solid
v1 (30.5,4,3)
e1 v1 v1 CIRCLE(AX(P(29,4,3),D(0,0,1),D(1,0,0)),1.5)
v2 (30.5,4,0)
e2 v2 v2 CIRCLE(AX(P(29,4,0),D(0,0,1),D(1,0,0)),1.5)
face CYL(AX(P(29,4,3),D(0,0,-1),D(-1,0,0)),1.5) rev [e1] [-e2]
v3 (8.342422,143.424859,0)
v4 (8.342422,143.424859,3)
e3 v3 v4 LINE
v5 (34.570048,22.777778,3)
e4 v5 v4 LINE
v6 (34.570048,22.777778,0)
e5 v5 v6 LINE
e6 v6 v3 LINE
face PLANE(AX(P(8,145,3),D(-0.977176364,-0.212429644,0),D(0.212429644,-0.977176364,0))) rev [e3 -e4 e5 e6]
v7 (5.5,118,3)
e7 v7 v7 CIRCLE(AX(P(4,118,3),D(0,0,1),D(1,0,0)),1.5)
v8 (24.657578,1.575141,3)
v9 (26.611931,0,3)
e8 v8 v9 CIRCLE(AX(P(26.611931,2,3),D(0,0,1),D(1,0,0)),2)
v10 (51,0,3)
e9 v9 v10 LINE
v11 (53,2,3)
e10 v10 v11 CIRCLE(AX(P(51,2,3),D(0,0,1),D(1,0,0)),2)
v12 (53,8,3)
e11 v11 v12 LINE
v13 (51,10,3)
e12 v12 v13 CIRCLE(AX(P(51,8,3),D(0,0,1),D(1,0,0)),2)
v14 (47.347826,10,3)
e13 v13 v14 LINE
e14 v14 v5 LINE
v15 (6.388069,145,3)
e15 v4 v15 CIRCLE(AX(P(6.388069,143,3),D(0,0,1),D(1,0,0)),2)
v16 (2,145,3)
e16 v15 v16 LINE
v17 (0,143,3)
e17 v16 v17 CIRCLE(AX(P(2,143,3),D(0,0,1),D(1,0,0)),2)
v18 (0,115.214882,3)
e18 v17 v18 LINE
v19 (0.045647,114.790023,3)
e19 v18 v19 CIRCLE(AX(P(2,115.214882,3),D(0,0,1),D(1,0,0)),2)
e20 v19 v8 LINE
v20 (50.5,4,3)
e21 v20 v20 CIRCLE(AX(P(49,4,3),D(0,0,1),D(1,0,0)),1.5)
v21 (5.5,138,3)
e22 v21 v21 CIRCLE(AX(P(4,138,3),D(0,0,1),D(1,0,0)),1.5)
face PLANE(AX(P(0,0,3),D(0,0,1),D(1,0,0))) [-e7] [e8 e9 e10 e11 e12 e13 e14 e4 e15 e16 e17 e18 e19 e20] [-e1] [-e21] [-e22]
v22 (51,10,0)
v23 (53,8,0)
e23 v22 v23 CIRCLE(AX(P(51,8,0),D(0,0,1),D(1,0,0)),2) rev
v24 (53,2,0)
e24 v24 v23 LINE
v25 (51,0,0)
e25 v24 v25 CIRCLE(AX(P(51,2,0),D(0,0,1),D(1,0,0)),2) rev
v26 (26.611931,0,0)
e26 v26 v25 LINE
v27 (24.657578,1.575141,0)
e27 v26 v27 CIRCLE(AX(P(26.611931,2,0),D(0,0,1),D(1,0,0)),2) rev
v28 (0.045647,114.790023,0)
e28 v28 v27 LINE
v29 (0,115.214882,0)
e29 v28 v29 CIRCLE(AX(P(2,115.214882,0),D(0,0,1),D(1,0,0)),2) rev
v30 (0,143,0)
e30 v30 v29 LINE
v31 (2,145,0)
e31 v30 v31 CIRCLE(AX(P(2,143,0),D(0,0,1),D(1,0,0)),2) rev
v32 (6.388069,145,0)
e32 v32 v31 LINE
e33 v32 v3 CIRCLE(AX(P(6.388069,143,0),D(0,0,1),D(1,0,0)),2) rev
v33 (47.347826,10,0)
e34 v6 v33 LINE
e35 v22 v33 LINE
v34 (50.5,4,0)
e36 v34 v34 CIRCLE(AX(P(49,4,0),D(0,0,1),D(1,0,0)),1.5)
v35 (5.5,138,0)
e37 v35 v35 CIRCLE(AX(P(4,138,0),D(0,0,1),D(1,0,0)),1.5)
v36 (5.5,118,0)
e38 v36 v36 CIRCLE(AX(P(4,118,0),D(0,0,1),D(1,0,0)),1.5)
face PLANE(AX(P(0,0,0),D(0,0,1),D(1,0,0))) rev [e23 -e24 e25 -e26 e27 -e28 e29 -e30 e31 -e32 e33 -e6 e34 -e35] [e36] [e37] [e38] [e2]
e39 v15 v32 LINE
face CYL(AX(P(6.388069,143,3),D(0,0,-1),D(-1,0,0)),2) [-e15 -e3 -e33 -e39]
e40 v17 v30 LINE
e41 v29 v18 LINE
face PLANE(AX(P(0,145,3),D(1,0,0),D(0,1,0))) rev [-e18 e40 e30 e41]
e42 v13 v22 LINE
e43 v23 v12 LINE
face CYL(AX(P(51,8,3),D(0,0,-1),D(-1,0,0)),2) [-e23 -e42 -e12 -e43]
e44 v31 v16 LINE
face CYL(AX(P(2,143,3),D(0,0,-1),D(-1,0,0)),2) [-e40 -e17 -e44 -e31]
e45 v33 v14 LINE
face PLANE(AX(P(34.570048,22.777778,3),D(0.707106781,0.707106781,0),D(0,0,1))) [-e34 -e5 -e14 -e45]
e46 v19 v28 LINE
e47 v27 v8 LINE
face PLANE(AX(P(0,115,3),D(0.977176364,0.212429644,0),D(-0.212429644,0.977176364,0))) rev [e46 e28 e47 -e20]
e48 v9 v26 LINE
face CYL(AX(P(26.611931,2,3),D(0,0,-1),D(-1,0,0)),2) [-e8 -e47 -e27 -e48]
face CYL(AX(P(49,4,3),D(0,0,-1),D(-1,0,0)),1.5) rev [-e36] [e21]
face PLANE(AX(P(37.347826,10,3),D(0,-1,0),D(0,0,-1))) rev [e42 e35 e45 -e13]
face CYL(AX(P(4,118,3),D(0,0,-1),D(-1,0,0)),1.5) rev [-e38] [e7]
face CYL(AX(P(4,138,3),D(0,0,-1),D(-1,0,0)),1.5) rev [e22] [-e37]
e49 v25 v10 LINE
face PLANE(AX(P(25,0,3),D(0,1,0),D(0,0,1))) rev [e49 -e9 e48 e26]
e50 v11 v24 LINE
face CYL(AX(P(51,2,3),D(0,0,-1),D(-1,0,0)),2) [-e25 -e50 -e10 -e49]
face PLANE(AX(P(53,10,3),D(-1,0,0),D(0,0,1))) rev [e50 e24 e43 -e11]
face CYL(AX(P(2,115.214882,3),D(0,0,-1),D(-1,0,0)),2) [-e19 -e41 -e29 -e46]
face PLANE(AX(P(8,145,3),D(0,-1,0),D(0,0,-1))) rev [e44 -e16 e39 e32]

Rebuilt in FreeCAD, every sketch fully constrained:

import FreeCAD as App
import Part
import Sketcher
from FreeCAD import Vector


def edges_at(feature, points):
    """Names of the edges that pass closest to the given points."""
    edges = feature.Shape.Edges
    near = lambda p: min(range(len(edges)), key=lambda i: edges[i].distToShape(Part.Vertex(*p))[0])
    return sorted({f"Edge{near(p) + 1}" for p in points})

doc = App.newDocument("Part")
body = doc.addObject("PartDesign::Body", "Body")

sketch1 = body.newObject("Sketcher::SketchObject", "Sketch")
sketch1.AttachmentSupport = (doc.getObject("XY_Plane"), [""])
sketch1.MapMode = "FlatFace"
sketch1.addGeometry([
    Part.LineSegment(Vector(0, 145, 0), Vector(0, 115, 0)),
    Part.LineSegment(Vector(0, 115, 0), Vector(25, 0, 0)),
    Part.LineSegment(Vector(25, 0, 0), Vector(53, 0, 0)),
    Part.LineSegment(Vector(53, 0, 0), Vector(53, 10, 0)),
    Part.LineSegment(Vector(53, 10, 0), Vector(37.347826, 10, 0)),
    Part.LineSegment(Vector(37.347826, 10, 0), Vector(8, 145, 0)),
    Part.LineSegment(Vector(8, 145, 0), Vector(0, 145, 0)),
    Part.Circle(Vector(29, 4, 0), Vector(0, 0, 1), 1.5),
    Part.Circle(Vector(49, 4, 0), Vector(0, 0, 1), 1.5),
    Part.Circle(Vector(4, 118, 0), Vector(0, 0, 1), 1.5),
    Part.Circle(Vector(4, 138, 0), Vector(0, 0, 1), 1.5),
], False)
sketch1.addConstraint([
    Sketcher.Constraint("Coincident", 0, 2, 1, 1),
    Sketcher.Constraint("Coincident", 1, 2, 2, 1),
    Sketcher.Constraint("Coincident", 2, 2, 3, 1),
    Sketcher.Constraint("Coincident", 3, 2, 4, 1),
    Sketcher.Constraint("Coincident", 4, 2, 5, 1),
    Sketcher.Constraint("Coincident", 5, 2, 6, 1),
    Sketcher.Constraint("Coincident", 6, 2, 0, 1),
    Sketcher.Constraint("Vertical", 0),
    Sketcher.Constraint("Horizontal", 2),
    Sketcher.Constraint("Vertical", 3),
    Sketcher.Constraint("Horizontal", 4),
    Sketcher.Constraint("Horizontal", 6),
    Sketcher.Constraint("Equal", 7, 8),
    Sketcher.Constraint("Equal", 8, 9),
    Sketcher.Constraint("Equal", 9, 10),
    Sketcher.Constraint("PointOnObject", 0, 2, -2),
    Sketcher.Constraint("PointOnObject", 1, 2, -1),
    Sketcher.Constraint("Parallel", 1, 5),
    Sketcher.Constraint("Horizontal", 7, 3, 8, 3),
    Sketcher.Constraint("Vertical", 9, 3, 10, 3),
    Sketcher.Constraint("Diameter", 7, 3.0),
    Sketcher.Constraint("DistanceX", 2, 1, 2, 2, 28.0),
    Sketcher.Constraint("DistanceX", 6, 2, 6, 1, 8.0),
    Sketcher.Constraint("DistanceY", 0, 2, 0, 1, 30.0),
    Sketcher.Constraint("DistanceY", 3, 1, 3, 2, 10.0),
    Sketcher.Constraint("DistanceX", -1, 1, 7, 3, 29.0),
    Sketcher.Constraint("DistanceY", -1, 1, 7, 3, 4.0),
    Sketcher.Constraint("DistanceX", -1, 1, 8, 3, 49.0),
    Sketcher.Constraint("DistanceX", -1, 1, 9, 3, 4.0),
    Sketcher.Constraint("DistanceY", -1, 1, 9, 3, 118.0),
    Sketcher.Constraint("DistanceY", -1, 1, 10, 3, 138.0),
    Sketcher.Constraint("DistanceY", -1, 1, 0, 2, 115.0),
    Sketcher.Constraint("DistanceX", -1, 1, 1, 2, 25.0),
])
pad1 = body.newObject("PartDesign::Pad", "Pad")
pad1.Profile = sketch1
pad1.Length = 3
doc.recompute()

chamfer = body.newObject("PartDesign::Chamfer", "Chamfer")
chamfer.Base = (pad1, edges_at(pad1, [(37.348, 10, 1.5)]))
chamfer.ChamferType = "Two distances"
chamfer.Size = 10
chamfer.Size2 = 13.076225
doc.recompute()

fillet = body.newObject("PartDesign::Fillet", "Fillet")
fillet.Base = (chamfer, edges_at(chamfer, [
    (8, 145, 1.5),
    (53, 10, 1.5),
    (53, 0, 1.5),
    (25, 0, 1.5),
    (0, 115, 1.5),
    (0, 145, 1.5),
]))
fillet.Radius = 2

doc.recompute()
